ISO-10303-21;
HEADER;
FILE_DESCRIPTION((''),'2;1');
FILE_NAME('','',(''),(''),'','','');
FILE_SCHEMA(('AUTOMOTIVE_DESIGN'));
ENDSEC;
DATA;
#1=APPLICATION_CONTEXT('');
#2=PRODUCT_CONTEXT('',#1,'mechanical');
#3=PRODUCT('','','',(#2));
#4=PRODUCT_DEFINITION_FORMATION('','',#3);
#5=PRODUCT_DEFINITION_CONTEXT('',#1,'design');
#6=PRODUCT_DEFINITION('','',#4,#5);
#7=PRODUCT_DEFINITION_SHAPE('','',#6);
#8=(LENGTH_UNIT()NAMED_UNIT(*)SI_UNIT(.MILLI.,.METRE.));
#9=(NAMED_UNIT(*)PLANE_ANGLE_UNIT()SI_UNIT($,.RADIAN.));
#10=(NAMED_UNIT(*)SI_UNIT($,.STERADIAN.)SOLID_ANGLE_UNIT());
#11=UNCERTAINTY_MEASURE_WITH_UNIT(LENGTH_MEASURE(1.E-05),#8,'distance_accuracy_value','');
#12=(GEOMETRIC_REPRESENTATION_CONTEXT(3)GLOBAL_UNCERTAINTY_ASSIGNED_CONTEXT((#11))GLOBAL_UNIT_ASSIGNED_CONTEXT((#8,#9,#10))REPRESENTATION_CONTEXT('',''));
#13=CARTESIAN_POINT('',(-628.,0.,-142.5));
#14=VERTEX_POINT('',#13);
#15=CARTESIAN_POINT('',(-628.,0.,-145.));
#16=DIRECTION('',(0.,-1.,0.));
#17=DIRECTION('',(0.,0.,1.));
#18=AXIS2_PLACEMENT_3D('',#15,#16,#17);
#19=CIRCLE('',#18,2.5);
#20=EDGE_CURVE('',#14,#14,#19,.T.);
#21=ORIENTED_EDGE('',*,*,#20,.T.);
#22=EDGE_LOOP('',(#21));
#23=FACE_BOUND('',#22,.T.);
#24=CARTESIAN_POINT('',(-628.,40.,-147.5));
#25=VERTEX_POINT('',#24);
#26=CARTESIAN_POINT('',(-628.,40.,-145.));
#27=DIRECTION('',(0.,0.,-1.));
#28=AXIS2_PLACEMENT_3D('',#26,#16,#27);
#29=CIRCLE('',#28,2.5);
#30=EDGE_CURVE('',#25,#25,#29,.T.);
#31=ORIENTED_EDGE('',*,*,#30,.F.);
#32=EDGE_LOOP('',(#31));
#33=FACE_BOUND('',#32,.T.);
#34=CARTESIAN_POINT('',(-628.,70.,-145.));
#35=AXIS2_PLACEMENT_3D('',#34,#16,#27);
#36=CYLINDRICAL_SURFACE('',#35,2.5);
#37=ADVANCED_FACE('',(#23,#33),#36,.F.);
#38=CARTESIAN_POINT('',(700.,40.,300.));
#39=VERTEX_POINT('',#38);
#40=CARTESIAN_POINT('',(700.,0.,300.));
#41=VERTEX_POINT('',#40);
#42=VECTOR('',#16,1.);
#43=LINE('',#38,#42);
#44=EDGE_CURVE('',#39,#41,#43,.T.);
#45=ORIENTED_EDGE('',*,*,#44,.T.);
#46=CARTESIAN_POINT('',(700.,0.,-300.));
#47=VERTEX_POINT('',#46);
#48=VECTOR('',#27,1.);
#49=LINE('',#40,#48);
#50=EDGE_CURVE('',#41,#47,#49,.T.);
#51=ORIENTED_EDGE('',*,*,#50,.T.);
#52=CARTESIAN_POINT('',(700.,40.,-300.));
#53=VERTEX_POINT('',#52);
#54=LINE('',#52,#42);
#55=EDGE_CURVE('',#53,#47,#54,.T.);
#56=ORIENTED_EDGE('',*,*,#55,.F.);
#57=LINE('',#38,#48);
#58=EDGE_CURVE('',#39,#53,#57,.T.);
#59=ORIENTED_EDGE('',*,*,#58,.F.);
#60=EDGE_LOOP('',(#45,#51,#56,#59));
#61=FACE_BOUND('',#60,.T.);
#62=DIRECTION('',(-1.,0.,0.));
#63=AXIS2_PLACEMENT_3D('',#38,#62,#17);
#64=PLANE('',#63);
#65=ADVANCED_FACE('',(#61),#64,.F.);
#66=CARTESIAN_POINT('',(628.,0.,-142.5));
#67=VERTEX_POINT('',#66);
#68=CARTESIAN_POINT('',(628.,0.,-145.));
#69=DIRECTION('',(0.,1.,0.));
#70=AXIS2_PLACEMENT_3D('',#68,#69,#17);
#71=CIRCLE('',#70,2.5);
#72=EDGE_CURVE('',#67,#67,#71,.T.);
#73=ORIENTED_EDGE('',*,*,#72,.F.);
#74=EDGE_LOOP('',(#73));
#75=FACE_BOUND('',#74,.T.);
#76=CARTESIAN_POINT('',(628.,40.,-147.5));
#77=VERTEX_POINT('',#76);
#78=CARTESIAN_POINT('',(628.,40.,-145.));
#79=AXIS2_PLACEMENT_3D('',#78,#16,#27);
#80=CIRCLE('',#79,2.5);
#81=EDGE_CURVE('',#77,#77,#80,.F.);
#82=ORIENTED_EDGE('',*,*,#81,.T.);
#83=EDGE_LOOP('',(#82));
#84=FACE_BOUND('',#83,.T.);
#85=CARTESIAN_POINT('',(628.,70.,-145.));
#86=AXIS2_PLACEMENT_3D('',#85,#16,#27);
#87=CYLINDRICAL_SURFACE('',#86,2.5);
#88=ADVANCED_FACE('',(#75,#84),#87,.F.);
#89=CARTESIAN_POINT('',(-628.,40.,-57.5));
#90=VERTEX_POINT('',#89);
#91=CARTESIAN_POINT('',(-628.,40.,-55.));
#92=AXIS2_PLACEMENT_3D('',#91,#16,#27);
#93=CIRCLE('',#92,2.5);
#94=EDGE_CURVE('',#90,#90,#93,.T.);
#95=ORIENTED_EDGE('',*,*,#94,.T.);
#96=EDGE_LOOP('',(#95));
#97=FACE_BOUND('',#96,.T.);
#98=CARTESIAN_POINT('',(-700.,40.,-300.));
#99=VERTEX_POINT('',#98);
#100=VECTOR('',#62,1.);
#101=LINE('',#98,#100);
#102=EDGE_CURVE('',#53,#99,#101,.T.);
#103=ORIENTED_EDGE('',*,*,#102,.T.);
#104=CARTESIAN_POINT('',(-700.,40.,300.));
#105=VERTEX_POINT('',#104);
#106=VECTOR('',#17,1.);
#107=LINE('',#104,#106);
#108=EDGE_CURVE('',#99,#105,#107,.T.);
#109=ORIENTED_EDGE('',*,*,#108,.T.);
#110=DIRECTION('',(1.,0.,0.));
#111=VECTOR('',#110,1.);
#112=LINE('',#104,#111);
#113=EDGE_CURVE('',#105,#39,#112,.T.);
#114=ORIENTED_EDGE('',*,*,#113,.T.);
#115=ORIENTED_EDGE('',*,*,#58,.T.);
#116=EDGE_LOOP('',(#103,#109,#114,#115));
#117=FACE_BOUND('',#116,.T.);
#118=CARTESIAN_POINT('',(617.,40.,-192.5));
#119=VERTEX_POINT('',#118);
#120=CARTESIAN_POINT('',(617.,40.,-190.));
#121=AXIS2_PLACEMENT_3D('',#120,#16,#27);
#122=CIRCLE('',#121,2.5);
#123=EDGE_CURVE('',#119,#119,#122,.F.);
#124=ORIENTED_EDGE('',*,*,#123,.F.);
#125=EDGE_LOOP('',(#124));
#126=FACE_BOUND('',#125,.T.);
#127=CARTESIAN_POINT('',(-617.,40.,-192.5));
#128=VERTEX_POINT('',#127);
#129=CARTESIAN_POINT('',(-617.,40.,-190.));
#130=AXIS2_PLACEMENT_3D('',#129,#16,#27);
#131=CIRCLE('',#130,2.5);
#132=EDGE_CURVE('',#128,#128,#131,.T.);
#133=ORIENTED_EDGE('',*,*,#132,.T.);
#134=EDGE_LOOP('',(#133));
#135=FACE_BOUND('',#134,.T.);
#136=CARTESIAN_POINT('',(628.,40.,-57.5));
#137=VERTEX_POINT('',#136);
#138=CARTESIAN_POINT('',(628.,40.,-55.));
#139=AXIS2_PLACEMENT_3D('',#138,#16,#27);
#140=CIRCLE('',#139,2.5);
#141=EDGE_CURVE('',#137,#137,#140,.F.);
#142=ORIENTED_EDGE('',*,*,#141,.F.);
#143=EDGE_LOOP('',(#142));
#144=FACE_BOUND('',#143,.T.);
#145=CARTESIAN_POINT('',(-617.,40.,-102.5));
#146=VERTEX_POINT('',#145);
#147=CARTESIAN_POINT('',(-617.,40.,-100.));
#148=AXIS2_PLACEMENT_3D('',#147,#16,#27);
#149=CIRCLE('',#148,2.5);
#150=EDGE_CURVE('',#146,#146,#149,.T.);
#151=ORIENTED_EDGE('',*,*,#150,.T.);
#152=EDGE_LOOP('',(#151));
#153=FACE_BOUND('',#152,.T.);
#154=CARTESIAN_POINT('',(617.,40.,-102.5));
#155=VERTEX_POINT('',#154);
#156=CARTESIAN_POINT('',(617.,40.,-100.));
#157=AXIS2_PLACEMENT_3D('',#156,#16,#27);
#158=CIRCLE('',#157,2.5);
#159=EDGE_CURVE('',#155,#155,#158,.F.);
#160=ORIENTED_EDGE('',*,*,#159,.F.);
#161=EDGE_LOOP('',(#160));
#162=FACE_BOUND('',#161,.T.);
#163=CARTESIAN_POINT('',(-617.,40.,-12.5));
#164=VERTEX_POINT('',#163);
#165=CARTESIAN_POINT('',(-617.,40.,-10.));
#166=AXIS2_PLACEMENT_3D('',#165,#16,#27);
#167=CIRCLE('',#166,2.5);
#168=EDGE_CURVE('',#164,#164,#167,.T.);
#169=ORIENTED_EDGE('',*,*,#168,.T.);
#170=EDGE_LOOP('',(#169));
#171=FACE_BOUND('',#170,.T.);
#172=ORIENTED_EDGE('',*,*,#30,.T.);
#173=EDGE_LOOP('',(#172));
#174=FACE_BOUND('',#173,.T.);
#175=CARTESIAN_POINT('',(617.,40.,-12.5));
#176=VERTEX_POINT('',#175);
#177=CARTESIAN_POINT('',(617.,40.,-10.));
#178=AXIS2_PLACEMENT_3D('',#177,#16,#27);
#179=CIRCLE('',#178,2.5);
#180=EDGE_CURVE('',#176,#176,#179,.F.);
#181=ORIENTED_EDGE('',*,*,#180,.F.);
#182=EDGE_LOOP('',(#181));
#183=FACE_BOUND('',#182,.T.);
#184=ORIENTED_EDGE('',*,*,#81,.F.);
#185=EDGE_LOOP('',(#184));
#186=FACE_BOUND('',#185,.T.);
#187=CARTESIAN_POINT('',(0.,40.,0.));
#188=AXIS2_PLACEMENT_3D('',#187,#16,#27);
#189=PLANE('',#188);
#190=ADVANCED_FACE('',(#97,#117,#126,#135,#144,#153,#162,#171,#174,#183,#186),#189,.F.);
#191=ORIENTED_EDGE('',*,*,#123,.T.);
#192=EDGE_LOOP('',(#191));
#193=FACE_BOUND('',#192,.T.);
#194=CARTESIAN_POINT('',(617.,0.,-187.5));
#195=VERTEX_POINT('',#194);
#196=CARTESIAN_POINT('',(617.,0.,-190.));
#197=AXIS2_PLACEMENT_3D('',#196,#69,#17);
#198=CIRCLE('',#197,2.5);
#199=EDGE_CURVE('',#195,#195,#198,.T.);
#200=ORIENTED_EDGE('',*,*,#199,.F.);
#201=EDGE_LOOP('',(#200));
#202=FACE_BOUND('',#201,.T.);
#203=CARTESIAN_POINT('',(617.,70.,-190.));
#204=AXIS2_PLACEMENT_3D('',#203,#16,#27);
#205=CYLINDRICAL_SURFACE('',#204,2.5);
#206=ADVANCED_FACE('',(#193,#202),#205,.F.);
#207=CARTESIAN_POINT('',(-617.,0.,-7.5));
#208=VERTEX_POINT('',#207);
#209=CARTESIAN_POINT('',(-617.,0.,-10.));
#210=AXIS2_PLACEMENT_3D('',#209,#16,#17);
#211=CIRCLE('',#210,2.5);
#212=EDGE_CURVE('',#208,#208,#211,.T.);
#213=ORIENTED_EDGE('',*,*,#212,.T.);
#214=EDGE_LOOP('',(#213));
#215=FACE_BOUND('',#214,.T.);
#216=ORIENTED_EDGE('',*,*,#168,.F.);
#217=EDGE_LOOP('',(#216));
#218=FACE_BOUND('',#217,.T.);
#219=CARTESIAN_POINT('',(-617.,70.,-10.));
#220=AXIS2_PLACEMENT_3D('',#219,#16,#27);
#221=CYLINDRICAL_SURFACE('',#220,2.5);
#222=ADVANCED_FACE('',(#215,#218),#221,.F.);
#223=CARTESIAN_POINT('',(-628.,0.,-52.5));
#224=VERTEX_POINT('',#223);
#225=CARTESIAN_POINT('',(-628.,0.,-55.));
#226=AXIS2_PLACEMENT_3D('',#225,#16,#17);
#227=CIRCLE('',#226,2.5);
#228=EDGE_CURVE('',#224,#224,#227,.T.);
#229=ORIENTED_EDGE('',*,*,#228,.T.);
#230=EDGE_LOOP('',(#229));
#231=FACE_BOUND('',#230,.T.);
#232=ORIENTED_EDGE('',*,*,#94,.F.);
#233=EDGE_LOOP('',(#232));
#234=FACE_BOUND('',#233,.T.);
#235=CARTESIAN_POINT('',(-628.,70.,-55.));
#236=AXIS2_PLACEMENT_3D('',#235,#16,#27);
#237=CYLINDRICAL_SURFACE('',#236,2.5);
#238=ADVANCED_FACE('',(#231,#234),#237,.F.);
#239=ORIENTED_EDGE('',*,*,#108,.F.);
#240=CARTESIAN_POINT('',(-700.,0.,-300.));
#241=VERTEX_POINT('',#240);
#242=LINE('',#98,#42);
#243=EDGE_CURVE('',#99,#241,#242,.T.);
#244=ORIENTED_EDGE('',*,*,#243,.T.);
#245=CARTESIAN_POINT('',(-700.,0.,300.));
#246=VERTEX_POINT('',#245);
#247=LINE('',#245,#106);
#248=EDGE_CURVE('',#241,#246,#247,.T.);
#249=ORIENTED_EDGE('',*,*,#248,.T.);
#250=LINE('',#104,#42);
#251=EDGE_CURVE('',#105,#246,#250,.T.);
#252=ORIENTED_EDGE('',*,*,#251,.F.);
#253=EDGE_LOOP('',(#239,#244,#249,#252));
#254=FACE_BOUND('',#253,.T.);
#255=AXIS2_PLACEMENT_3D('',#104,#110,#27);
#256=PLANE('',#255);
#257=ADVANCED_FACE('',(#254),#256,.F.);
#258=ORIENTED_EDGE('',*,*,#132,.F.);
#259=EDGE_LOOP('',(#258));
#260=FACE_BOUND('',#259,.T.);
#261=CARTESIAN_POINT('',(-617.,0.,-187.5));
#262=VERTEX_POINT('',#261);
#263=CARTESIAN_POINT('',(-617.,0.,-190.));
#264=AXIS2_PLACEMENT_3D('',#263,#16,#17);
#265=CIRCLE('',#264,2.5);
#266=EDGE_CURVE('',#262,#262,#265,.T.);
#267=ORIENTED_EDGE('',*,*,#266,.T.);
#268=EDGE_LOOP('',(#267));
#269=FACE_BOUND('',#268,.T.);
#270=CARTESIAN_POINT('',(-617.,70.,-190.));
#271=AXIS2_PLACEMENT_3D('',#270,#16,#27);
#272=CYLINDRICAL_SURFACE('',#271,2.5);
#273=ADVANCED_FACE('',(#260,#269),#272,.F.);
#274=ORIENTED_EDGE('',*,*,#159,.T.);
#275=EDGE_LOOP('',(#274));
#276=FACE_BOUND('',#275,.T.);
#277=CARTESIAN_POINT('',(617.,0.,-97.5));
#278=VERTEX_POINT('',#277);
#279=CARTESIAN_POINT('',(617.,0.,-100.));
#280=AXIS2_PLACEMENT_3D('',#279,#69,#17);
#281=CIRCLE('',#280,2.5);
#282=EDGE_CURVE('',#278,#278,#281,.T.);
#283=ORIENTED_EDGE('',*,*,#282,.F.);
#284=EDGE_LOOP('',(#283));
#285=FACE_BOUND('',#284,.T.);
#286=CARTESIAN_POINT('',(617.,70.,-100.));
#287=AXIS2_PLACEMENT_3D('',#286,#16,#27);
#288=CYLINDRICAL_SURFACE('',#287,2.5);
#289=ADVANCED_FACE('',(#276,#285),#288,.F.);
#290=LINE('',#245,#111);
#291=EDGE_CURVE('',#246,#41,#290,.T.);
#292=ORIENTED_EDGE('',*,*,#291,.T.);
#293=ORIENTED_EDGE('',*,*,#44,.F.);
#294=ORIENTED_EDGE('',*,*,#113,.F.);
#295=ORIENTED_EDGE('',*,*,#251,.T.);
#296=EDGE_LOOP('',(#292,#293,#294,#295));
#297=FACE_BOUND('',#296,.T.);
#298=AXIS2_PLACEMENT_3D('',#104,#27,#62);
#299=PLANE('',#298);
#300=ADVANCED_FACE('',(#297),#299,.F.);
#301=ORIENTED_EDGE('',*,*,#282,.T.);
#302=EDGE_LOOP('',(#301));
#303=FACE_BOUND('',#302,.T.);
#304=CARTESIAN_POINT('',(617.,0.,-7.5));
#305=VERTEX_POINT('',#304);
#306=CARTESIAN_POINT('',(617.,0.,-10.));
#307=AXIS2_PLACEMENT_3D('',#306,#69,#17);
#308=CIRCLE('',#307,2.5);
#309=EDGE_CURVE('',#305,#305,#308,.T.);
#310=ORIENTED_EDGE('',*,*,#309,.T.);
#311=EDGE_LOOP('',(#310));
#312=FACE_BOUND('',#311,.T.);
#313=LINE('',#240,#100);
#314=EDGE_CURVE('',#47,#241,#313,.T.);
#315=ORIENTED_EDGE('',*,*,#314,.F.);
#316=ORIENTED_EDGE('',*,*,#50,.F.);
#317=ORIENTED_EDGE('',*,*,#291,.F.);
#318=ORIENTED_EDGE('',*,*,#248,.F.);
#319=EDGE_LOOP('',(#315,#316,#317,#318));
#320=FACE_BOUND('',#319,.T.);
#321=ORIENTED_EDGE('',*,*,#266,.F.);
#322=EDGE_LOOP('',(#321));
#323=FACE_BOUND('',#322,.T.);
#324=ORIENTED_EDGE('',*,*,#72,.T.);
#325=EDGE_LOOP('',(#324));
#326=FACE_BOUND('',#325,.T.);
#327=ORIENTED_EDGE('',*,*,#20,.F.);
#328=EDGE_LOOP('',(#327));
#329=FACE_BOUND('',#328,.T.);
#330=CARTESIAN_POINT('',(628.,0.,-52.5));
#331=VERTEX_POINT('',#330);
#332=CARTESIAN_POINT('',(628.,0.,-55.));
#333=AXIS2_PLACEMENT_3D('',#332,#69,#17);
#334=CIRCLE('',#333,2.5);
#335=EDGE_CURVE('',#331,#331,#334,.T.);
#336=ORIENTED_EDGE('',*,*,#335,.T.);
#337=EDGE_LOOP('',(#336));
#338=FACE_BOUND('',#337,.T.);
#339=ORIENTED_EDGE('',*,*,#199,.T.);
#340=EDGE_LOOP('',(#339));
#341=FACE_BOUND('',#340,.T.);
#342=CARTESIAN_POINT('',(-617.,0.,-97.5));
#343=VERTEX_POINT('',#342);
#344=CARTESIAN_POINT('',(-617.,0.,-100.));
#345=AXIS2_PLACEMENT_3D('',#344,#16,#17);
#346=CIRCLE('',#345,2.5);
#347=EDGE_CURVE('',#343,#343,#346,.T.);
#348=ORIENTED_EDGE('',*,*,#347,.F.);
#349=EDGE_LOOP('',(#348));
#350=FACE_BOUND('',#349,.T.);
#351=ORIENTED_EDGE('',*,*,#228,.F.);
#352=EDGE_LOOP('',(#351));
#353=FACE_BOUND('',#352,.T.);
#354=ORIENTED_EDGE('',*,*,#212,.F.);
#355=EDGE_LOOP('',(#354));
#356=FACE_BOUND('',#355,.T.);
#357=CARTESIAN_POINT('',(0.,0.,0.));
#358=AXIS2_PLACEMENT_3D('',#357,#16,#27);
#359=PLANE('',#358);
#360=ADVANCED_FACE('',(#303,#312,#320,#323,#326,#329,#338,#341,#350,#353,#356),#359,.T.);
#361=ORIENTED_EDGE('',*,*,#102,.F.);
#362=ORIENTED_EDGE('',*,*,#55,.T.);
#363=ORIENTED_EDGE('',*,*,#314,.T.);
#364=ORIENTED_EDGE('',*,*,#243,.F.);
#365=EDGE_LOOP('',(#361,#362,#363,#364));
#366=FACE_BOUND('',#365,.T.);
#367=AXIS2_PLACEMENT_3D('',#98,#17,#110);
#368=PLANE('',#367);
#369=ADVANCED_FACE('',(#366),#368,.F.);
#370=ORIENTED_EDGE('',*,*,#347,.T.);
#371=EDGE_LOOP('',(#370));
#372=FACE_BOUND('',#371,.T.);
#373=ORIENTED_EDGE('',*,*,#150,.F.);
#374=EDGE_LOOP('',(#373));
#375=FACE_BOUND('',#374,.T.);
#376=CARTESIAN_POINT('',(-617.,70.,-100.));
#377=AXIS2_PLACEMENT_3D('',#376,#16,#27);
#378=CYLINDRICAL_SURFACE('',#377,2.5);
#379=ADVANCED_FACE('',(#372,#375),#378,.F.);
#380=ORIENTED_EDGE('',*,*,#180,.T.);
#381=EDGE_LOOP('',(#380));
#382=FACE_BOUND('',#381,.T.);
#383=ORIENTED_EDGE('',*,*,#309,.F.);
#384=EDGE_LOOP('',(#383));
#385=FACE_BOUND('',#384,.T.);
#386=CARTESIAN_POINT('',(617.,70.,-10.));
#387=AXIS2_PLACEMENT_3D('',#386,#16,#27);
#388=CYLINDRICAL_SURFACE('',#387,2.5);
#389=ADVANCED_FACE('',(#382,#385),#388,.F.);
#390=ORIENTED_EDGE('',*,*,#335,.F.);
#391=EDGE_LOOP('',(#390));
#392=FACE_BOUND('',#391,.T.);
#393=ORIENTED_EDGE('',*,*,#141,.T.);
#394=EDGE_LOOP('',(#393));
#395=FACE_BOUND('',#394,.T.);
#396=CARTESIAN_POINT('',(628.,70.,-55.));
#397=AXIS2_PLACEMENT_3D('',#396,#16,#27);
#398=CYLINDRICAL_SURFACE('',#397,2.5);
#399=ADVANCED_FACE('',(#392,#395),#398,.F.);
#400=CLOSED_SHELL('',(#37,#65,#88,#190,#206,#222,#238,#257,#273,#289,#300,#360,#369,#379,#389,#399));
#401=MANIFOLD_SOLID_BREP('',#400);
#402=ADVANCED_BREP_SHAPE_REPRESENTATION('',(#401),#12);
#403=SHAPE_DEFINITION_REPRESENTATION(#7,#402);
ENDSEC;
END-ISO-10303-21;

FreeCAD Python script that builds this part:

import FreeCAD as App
import Part
import Sketcher
from FreeCAD import Vector


def add_polygon(sketch, points):
    """Adds a closed chain of lines whose ends are joined by coincident constraints."""
    first, n = sketch.GeometryCount, len(points)
    for a, b in zip(points, points[1:] + points[:1]):
        sketch.addGeometry(Part.LineSegment(App.Vector(*a, 0), App.Vector(*b, 0)), False)
    for i in range(n):
        sketch.addConstraint(Sketcher.Constraint("Coincident", first + i, 2, first + (i + 1) % n, 1))

doc = App.newDocument("Part")
body = doc.addObject("PartDesign::Body", "Body")

# Sketch on XZ plane
sketch1 = body.newObject("Sketcher::SketchObject", "Sketch")
sketch1.AttachmentSupport = (doc.getObject("XZ_Plane"), [""])
sketch1.MapMode = "FlatFace"
add_polygon(sketch1, [(-700, -300), (-700, 300), (700, 300), (700, -300)])  # lines 0-3
sketch1.addConstraint([
    Sketcher.Constraint("Vertical", 0),
    Sketcher.Constraint("Horizontal", 1),
    Sketcher.Constraint("Vertical", 2),
    Sketcher.Constraint("Horizontal", 3),
    Sketcher.Constraint("Symmetric", 0, 2, 2, 2, -1, 1),
    Sketcher.Constraint("DistanceX", 1, 1, 1, 2, 1400.0),
    Sketcher.Constraint("DistanceY", 0, 1, 0, 2, 600.0),
])
pad1 = body.newObject("PartDesign::Pad", "Pad")
pad1.Profile = sketch1
pad1.Length = 40
pad1.Reversed = True

# Sketch on XZ plane
sketch2 = body.newObject("Sketcher::SketchObject", "Sketch001")
sketch2.AttachmentSupport = (doc.getObject("XZ_Plane"), [""])
sketch2.MapMode = "FlatFace"
sketch2.addGeometry([
    Part.Circle(Vector(617, -10, 0), Vector(0, 0, 1), 2.5),  # 0
    Part.Circle(Vector(628, -55, 0), Vector(0, 0, 1), 2.5),  # 1
    Part.Circle(Vector(617, -100, 0), Vector(0, 0, 1), 2.5),  # 2
    Part.Circle(Vector(628, -145, 0), Vector(0, 0, 1), 2.5),  # 3
    Part.Circle(Vector(617, -190, 0), Vector(0, 0, 1), 2.5),  # 4
], False)
sketch2.addConstraint([
    Sketcher.Constraint("Equal", 0, 1),
    Sketcher.Constraint("Equal", 1, 2),
    Sketcher.Constraint("Equal", 2, 3),
    Sketcher.Constraint("Equal", 3, 4),
    Sketcher.Constraint("Vertical", 0, 3, 2, 3),
    Sketcher.Constraint("Vertical", 1, 3, 3, 3),
    Sketcher.Constraint("Vertical", 2, 3, 4, 3),
    Sketcher.Constraint("Diameter", 0, 5.0),
    Sketcher.Constraint("DistanceX", -1, 1, 0, 3, 617.0),
    Sketcher.Constraint("DistanceY", 0, 3, -1, 1, 10.0),
    Sketcher.Constraint("DistanceX", -1, 1, 1, 3, 628.0),
    Sketcher.Constraint("DistanceY", 1, 3, -1, 1, 55.0),
    Sketcher.Constraint("DistanceY", 2, 3, -1, 1, 100.0),
    Sketcher.Constraint("DistanceY", 3, 3, -1, 1, 145.0),
    Sketcher.Constraint("DistanceY", 4, 3, -1, 1, 190.0),
])
pocket1 = body.newObject("PartDesign::Pocket", "Pocket")
pocket1.Profile = sketch2
pocket1.Length = 70
doc.recompute()

mirrored = body.newObject("PartDesign::Mirrored", "Mirrored")
mirrored.Originals = [pocket1]
mirrored.MirrorPlane = (doc.getObject("YZ_Plane"), [""])
body.Tip = mirrored

doc.recompute()
